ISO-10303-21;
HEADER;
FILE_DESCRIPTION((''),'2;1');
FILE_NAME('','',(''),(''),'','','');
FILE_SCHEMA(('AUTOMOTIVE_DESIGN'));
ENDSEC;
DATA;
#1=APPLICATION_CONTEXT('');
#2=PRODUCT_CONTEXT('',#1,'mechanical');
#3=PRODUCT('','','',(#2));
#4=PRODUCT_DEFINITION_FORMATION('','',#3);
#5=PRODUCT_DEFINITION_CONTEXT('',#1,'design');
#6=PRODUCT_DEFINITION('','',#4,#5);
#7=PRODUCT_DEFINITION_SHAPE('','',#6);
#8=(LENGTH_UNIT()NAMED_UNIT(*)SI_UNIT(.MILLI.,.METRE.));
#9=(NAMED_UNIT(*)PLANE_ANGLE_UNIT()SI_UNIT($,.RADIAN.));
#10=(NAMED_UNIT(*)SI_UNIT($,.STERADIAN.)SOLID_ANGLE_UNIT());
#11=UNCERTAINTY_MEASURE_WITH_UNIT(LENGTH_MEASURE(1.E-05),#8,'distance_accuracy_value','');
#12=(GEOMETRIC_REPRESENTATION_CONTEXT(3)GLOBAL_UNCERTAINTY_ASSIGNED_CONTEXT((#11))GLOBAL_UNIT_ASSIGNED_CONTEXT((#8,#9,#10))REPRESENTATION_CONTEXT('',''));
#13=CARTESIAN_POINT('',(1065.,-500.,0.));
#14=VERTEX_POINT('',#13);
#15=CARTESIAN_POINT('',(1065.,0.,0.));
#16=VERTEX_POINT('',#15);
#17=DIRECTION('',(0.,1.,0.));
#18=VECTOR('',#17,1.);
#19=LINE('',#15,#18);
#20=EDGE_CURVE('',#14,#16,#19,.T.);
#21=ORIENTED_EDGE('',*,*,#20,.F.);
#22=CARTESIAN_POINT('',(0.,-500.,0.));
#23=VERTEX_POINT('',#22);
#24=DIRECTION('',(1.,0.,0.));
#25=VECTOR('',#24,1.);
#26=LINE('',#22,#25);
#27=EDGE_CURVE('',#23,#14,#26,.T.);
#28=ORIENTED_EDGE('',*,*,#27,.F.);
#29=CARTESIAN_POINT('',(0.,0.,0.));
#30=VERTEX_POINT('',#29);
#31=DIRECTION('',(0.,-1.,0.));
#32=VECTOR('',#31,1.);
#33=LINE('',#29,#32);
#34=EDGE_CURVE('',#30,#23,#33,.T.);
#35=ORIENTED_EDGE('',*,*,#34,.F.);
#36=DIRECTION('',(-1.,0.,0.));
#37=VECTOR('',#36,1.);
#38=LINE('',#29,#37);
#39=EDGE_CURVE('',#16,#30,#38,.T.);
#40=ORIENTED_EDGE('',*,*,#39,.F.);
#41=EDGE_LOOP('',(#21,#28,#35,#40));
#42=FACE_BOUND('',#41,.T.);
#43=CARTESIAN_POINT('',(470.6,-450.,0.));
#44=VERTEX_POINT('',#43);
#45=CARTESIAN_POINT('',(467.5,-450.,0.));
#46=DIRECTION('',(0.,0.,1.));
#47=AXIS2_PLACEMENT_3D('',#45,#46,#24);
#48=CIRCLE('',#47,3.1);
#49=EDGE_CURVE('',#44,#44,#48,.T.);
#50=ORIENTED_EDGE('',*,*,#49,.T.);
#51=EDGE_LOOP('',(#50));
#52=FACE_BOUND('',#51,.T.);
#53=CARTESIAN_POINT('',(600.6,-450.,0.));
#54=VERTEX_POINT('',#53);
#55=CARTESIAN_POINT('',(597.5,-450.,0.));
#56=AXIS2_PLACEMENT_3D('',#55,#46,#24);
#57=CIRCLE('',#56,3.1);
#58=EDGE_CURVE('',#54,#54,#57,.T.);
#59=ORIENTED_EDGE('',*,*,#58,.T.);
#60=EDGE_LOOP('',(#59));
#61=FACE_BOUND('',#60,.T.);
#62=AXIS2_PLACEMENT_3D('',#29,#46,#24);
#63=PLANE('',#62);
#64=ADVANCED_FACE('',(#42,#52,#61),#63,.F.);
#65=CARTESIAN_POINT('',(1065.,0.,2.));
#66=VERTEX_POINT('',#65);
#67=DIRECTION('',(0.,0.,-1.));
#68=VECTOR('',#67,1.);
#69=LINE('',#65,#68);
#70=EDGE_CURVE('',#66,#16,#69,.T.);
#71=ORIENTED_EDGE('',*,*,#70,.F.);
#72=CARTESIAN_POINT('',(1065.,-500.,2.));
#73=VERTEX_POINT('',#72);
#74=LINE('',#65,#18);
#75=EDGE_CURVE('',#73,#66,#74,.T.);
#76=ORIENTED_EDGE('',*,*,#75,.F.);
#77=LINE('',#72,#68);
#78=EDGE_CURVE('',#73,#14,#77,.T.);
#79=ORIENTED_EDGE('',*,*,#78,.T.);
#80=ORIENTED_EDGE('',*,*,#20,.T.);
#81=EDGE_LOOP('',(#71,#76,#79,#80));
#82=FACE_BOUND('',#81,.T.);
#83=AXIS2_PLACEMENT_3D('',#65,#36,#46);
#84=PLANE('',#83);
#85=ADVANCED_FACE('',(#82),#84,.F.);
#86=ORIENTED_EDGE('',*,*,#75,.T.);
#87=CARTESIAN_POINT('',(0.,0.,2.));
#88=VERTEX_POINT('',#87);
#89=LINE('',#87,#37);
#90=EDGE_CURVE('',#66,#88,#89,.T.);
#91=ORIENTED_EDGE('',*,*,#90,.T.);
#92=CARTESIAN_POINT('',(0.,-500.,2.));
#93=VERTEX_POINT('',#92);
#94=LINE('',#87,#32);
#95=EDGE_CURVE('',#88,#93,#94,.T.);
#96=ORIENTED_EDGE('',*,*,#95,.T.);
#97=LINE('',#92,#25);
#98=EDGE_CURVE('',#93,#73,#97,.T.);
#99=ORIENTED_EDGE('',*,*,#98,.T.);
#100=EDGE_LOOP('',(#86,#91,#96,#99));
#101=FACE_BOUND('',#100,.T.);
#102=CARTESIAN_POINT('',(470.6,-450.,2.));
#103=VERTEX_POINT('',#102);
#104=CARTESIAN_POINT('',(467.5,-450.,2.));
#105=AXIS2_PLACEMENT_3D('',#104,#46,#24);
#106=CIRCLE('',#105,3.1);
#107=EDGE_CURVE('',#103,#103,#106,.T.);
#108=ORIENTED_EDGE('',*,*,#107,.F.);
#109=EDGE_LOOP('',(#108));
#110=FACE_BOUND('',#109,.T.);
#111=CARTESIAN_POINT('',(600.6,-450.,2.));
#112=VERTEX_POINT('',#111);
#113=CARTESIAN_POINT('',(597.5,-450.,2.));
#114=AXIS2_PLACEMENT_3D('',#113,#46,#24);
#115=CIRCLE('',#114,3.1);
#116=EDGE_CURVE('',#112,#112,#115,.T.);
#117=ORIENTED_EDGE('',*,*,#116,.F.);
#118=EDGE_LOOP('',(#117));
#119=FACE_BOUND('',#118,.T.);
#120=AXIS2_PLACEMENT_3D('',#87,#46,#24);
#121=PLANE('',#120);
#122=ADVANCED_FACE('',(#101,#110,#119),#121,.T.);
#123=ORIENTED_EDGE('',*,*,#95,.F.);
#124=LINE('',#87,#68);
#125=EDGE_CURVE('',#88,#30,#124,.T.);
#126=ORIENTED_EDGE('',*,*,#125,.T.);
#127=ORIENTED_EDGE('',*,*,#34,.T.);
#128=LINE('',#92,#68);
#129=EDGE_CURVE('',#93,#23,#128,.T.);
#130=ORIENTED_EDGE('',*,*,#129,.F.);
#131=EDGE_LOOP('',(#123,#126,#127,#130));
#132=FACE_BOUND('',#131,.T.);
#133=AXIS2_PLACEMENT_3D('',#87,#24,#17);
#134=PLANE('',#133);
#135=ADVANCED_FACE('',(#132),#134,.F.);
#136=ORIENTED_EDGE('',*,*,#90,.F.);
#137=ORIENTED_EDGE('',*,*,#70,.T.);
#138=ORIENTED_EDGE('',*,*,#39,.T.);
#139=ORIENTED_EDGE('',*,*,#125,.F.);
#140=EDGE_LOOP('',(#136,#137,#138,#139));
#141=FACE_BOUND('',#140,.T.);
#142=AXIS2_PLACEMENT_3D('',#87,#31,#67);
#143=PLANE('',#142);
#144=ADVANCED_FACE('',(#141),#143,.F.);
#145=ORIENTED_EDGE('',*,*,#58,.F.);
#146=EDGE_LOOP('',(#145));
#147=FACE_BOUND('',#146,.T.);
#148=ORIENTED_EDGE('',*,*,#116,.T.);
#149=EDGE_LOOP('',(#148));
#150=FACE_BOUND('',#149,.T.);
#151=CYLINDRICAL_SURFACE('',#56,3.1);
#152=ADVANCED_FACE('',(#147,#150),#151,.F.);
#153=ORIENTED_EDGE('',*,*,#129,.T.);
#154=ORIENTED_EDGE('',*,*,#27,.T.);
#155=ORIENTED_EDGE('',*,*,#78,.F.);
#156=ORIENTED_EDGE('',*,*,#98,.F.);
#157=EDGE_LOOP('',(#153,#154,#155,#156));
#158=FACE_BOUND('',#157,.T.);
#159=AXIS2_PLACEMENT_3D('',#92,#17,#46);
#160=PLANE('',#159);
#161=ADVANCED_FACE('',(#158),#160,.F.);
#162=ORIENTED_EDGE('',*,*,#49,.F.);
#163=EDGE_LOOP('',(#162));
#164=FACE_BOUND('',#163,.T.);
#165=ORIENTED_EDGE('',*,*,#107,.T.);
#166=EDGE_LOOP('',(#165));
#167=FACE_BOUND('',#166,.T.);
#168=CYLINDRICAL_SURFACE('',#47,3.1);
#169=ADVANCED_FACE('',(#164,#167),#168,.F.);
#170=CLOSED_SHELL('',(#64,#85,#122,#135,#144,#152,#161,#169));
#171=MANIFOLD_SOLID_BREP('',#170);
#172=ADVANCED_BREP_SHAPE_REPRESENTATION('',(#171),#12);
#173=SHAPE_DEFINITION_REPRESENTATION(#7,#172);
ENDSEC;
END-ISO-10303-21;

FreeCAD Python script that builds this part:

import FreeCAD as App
import Part
import Sketcher
from FreeCAD import Vector
Q = App.Units.Quantity


def add_polygon(sketch, points):
    """Adds a closed chain of lines whose ends are joined by coincident constraints."""
    first, n = sketch.GeometryCount, len(points)
    for a, b in zip(points, points[1:] + points[:1]):
        sketch.addGeometry(Part.LineSegment(App.Vector(*a, 0), App.Vector(*b, 0)), False)
    for i in range(n):
        sketch.addConstraint(Sketcher.Constraint("Coincident", first + i, 2, first + (i + 1) % n, 1))

doc = App.newDocument("Part")
params = doc.addObject("Spreadsheet::Sheet", "Params")
for row, (alias, value) in enumerate([
    ("sketch1_width", "1065 mm"),
    ("sketch1_height", "500 mm"),
    ("pad1_length", "2 mm"),
    ("sketch2_diameter", "6.2 mm"),
], start=1):
    params.set(f"A{row}", alias)
    params.set(f"B{row}", "=" + value)
    params.setAlias(f"B{row}", alias)

body = doc.addObject("PartDesign::Body", "Body")

sketch1 = doc.addObject("Sketcher::SketchObject", "Sketch")
body.addObject(sketch1)
sketch1.AttachmentSupport = (doc.XY_Plane, [""])
sketch1.MapMode = "FlatFace"
add_polygon(sketch1, [(0, 0), (0, -500), (1065, -500), (1065, 0)])
sketch1.addConstraint([
    Sketcher.Constraint("Vertical", 0),
    Sketcher.Constraint("Horizontal", 1),
    Sketcher.Constraint("Vertical", 2),
    Sketcher.Constraint("Horizontal", 3),
    Sketcher.Constraint("Coincident", 3, 2, -1, 1),
    Sketcher.Constraint("DistanceX", 1, 1, 1, 2, Q("1065 mm")),
    Sketcher.Constraint("DistanceY", 0, 2, 0, 1, Q("500 mm")),
])
sketch1.setExpression("Constraints[9]", "Params.sketch1_width")
sketch1.setExpression("Constraints[10]", "Params.sketch1_height")
pad1 = doc.addObject("PartDesign::Pad", "Pad")
body.addObject(pad1)
pad1.Profile = sketch1
pad1.setExpression("Length", "Params.pad1_length")

sketch2 = doc.addObject("Sketcher::SketchObject", "Sketch001")
body.addObject(sketch2)
sketch2.AttachmentSupport = (doc.XY_Plane, [""])
sketch2.MapMode = "FlatFace"
sketch2.AttachmentOffset = App.Placement(Vector(0, 0, 2), App.Rotation())
sketch2.addGeometry([
    Part.Circle(Vector(597.5, -450, 0), Vector(0, 0, 1), 3.1),
    Part.Circle(Vector(467.5, -450, 0), Vector(0, 0, 1), 3.1),
], False)
sketch2.addConstraint([
    Sketcher.Constraint("Equal", 0, 1),
    Sketcher.Constraint("Horizontal", 0, 3, 1, 3),
    Sketcher.Constraint("Diameter", 0, Q("6.2 mm")),
    Sketcher.Constraint("DistanceY", 0, 3, -1, 1, Q("450 mm")),
    Sketcher.Constraint("DistanceX", 1, 3, 0, 3, Q("130 mm")),
    Sketcher.Constraint("DistanceX", -1, 1, 0, 3, Q("597.5 mm")),
])
sketch2.setExpression("Constraints[2]", "Params.sketch2_diameter")
pocket1 = doc.addObject("PartDesign::Pocket", "Pocket")
body.addObject(pocket1)
pocket1.Profile = sketch2
pocket1.Type = "ThroughAll"

doc.recompute()
